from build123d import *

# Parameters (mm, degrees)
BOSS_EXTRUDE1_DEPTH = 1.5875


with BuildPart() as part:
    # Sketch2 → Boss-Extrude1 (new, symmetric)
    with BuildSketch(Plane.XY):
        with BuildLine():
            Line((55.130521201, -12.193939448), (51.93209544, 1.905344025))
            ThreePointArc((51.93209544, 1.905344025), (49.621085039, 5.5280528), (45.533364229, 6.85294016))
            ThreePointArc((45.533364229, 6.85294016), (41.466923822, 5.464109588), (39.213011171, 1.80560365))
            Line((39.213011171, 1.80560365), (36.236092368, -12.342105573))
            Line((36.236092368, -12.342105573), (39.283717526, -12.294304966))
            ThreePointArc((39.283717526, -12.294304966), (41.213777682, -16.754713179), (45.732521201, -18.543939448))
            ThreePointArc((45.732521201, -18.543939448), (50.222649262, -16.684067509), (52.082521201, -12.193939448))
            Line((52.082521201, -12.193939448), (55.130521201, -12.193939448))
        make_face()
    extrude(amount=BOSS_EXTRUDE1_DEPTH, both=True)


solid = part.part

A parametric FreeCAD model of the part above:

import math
import FreeCAD as App
import Part
import Sketcher
from FreeCAD import Vector
Q = App.Units.Quantity

doc = App.newDocument("Part")
body = doc.addObject("PartDesign::Body", "Body")

sketch1 = body.newObject("Sketcher::SketchObject", "Sketch")
sketch1.AttachmentSupport = (doc.getObject("XY_Plane"), [""])
sketch1.MapMode = "FlatFace"
sketch1.addGeometry([
    Part.LineSegment(Vector(55.130521, -12.193939, 0), Vector(51.932095, 1.905344, 0)),
    Part.ArcOfCircle(Part.Circle(Vector(45.732521, 0.498969, 0), Vector(0, 0, 1), 6.357091), math.radians(12.781246), math.radians(91.795274)),
    Part.ArcOfCircle(Part.Circle(Vector(45.433879, 0.496627, 0), Vector(0, 0, 1), 6.357091), math.radians(89.10331), math.radians(168.117339)),
    Part.LineSegment(Vector(39.213011, 1.805604, 0), Vector(36.236092, -12.342106, 0)),
    Part.LineSegment(Vector(36.236092, -12.342106, 0), Vector(39.283718, -12.294305, 0)),
    Part.ArcOfCircle(Part.Circle(Vector(45.632937, -12.19472, 0), Vector(0, 0, 1), 6.35), math.radians(-179.101416), math.radians(-89.101416)),
    Part.ArcOfCircle(Part.Circle(Vector(45.732521, -12.193939, 0), Vector(0, 0, 1), 6.35), math.radians(-90), math.radians(0)),
    Part.LineSegment(Vector(52.082521, -12.193939, 0), Vector(55.130521, -12.193939, 0)),
], False)
sketch1.addConstraint([
    Sketcher.Constraint("Tangent", 0, 2, 1, 1),
    Sketcher.Constraint("Coincident", 1, 2, 2, 1),
    Sketcher.Constraint("Tangent", 2, 2, 3, 1),
    Sketcher.Constraint("Coincident", 3, 2, 4, 1),
    Sketcher.Constraint("Coincident", 4, 2, 5, 1),
    Sketcher.Constraint("Coincident", 5, 2, 6, 1),
    Sketcher.Constraint("Coincident", 6, 2, 7, 1),
    Sketcher.Constraint("Coincident", 7, 2, 0, 1),
    Sketcher.Constraint("Horizontal", 7),
    Sketcher.Constraint("Equal", 1, 2),
    Sketcher.Constraint("Equal", 5, 6),
    Sketcher.Constraint("Vertical", 1, 3, 6, 3),
    Sketcher.Constraint("Vertical", 6, 3, 5, 2),
    Sketcher.Constraint("Equal", 0, 3),
    Sketcher.Constraint("Radius", 5, Q("0.25 in")),
    Sketcher.Constraint("DistanceX", 7, 1, 7, 2, Q("0.12 in")),
    Sketcher.Constraint("Distance", 4, Q("0.12 in")),
    Sketcher.Constraint("DistanceY", 5, 2, 6, 2, Q("0.25 in")),
    Sketcher.Constraint("Radius", 1, Q("6.357091 mm")),
    Sketcher.Constraint("DistanceY", 3, 2, 4, 2, Q("0.047801 mm")),
    Sketcher.Constraint("DistanceX", -1, 1, 1, 3, Q("45.732521 mm")),
    Sketcher.Constraint("DistanceY", -1, 1, 1, 3, Q("0.498969 mm")),
    Sketcher.Constraint("DistanceX", -1, 1, 2, 3, Q("45.433879 mm")),
    Sketcher.Constraint("DistanceY", 5, 3, -1, 1, Q("12.19472 mm")),
    Sketcher.Constraint("DistanceY", 6, 3, -1, 1, Q("12.193939 mm")),
    Sketcher.Constraint("DistanceY", -1, 1, 1, 2, Q("6.85294 mm")),
])
pad1 = body.newObject("PartDesign::Pad", "Pad")
pad1.Profile = sketch1
pad1.Length = Q("0.125 in")
pad1.Midplane = True

doc.recompute()
